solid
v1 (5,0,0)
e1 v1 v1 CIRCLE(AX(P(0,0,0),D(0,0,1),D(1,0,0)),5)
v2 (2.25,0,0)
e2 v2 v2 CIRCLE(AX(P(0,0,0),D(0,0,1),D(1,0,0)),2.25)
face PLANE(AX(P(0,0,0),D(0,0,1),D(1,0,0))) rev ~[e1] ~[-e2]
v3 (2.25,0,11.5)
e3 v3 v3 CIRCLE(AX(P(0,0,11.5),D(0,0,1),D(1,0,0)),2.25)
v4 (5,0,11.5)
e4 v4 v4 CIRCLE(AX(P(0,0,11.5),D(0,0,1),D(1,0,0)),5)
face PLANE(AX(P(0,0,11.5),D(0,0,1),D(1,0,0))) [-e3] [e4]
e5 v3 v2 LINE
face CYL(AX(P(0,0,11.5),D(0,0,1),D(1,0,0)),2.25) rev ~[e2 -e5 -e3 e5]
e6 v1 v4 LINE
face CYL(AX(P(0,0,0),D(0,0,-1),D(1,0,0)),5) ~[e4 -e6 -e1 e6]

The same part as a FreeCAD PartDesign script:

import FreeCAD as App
import Part
import Sketcher

V = App.Vector

doc = App.newDocument("Part")
body = doc.addObject("PartDesign::Body", "Body")

sketch1 = body.newObject("Sketcher::SketchObject", "Sketch")
sketch1.AttachmentSupport = (doc.getObject("XY_Plane"), [""])
sketch1.MapMode = "FlatFace"
sketch1.addGeometry(Part.Circle(V(0, 0, 0), V(0, 0, 1), 5), False)
sketch1.addConstraint(Sketcher.Constraint("Coincident", 0, 3, -1, 1))
sketch1.addConstraint(Sketcher.Constraint("Diameter", 0, 10.0))
pad1 = body.newObject("PartDesign::Pad", "Pad")
pad1.Profile = sketch1
pad1.Length = 11.5

sketch2 = body.newObject("Sketcher::SketchObject", "Sketch001")
sketch2.AttachmentSupport = (doc.getObject("XY_Plane"), [""])
sketch2.MapMode = "FlatFace"
sketch2.AttachmentOffset = App.Placement(V(0, 0, 11.5), App.Rotation())
sketch2.addGeometry(Part.Circle(V(0, 0, 0), V(0, 0, 1), 2.2), False)
sketch2.addConstraint(Sketcher.Constraint("Coincident", 0, 3, -1, 1))
sketch2.addConstraint(Sketcher.Constraint("Diameter", 0, 4.5))
pocket1 = body.newObject("PartDesign::Pocket", "Pocket")
pocket1.Profile = sketch2
pocket1.Type = "ThroughAll"

doc.recompute()
